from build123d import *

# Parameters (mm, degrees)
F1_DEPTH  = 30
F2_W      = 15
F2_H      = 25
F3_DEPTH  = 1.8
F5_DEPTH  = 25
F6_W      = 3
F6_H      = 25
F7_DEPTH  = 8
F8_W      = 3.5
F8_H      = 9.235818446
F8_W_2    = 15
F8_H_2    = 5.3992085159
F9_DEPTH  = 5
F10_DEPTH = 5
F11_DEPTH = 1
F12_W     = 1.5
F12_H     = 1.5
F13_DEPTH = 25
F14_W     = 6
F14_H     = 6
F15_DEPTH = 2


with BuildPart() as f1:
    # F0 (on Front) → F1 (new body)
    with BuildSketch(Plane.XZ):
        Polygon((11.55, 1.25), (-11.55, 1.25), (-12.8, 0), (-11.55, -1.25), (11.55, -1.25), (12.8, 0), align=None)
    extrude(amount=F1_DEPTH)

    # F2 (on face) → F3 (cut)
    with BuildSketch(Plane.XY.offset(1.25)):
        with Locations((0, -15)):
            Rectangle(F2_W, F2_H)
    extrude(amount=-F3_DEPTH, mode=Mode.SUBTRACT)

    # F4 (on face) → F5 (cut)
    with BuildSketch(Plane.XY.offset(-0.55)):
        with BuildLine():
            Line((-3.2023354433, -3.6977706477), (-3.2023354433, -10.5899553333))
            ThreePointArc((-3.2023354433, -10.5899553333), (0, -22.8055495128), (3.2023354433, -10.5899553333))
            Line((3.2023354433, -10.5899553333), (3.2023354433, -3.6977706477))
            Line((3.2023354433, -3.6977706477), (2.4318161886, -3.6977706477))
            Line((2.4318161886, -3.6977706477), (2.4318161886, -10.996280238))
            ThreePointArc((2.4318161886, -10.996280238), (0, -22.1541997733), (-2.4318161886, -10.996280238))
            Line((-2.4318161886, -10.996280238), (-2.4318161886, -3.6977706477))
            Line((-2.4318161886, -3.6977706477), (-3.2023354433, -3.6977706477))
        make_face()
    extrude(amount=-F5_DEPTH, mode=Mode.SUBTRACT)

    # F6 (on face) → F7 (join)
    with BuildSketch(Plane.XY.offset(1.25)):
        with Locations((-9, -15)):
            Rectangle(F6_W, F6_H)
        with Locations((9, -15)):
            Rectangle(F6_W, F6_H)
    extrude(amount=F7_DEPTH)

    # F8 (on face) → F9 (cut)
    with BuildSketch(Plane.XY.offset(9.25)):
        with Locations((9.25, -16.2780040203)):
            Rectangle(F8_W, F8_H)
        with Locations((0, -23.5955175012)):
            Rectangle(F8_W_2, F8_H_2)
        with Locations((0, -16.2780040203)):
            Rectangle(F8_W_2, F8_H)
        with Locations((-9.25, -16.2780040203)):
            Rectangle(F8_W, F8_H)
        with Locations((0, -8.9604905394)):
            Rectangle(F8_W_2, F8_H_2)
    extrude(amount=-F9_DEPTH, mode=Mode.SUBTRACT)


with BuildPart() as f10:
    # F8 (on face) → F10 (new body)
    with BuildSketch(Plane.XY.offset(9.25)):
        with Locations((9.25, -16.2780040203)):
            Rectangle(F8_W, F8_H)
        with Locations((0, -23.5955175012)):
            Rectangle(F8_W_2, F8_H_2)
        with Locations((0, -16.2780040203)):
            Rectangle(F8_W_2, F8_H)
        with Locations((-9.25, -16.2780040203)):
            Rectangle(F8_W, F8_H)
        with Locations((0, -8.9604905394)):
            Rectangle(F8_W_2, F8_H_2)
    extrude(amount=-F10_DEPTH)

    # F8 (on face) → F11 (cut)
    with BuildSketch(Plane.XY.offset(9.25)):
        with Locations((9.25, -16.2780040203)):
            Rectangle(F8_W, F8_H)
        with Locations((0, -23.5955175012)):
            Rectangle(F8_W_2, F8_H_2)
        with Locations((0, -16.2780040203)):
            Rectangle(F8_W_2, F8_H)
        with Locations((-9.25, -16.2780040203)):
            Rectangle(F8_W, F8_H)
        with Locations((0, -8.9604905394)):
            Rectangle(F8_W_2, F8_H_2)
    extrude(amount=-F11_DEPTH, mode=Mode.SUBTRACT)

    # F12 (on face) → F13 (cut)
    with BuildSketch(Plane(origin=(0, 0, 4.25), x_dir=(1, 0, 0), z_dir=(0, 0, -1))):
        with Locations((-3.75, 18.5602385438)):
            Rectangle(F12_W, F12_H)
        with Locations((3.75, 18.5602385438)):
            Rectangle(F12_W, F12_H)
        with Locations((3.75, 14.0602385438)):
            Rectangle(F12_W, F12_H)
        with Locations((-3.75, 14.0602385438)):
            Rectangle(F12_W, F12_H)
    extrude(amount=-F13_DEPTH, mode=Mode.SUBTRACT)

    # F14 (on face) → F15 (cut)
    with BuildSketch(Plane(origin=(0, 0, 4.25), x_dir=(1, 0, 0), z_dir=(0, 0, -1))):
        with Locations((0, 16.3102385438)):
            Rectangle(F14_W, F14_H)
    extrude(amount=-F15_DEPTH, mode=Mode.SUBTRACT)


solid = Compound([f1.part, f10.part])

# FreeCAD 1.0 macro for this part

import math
import FreeCAD as App
import Part
import Sketcher
from FreeCAD import Vector


def add_polygon(sketch, points):
    """Adds a closed chain of lines whose ends are joined by coincident constraints."""
    first, n = sketch.GeometryCount, len(points)
    for a, b in zip(points, points[1:] + points[:1]):
        sketch.addGeometry(Part.LineSegment(App.Vector(*a, 0), App.Vector(*b, 0)), False)
    for i in range(n):
        sketch.addConstraint(Sketcher.Constraint("Coincident", first + i, 2, first + (i + 1) % n, 1))

doc = App.newDocument("Part")
body = doc.addObject("PartDesign::Body", "Body")

# Sketch on XZ plane
sketch1 = body.newObject("Sketcher::SketchObject", "Sketch")
sketch1.AttachmentSupport = (doc.getObject("XZ_Plane"), [""])
sketch1.MapMode = "FlatFace"
add_polygon(sketch1, [(11.6, 1.2), (-11.6, 1.2), (-12.8, 0), (-11.6, -1.2), (11.6, -1.2), (12.8, 0)])  # lines 0-5
sketch1.addConstraint(Sketcher.Constraint("Horizontal", 0))
sketch1.addConstraint(Sketcher.Constraint("Horizontal", 3))
sketch1.addConstraint(Sketcher.Constraint("Symmetric", 0, 2, 3, 2, -1, 1))
sketch1.addConstraint(Sketcher.Constraint("Symmetric", 1, 2, 4, 2, -1, 1))
sketch1.addConstraint(Sketcher.Constraint("PointOnObject", 1, 2, -1))
sketch1.addConstraint(Sketcher.Constraint("Perpendicular", 1, 2))
sketch1.addConstraint(Sketcher.Constraint("Perpendicular", 4, 5))
sketch1.addConstraint(Sketcher.Constraint("Vertical", 0, 2, 2, 2))
sketch1.addConstraint(Sketcher.Constraint("DistanceX", 0, 2, 0, 1, 23.1))
sketch1.addConstraint(Sketcher.Constraint("DistanceX", 1, 2, -1, 1, 12.8))
pad1 = body.newObject("PartDesign::Pad", "Pad")
pad1.Profile = sketch1
pad1.Length = 30

# Sketch on XY plane
sketch2 = body.newObject("Sketcher::SketchObject", "Sketch001")
sketch2.AttachmentSupport = (doc.getObject("XY_Plane"), [""])
sketch2.MapMode = "FlatFace"
sketch2.AttachmentOffset = App.Placement(Vector(0, 0, 1.25), App.Rotation())
add_polygon(sketch2, [(-8, -2), (-8, -28), (8, -28), (8, -2)])  # lines 0-3
sketch2.addConstraint(Sketcher.Constraint("Vertical", 0))
sketch2.addConstraint(Sketcher.Constraint("Horizontal", 1))
sketch2.addConstraint(Sketcher.Constraint("Vertical", 2))
sketch2.addConstraint(Sketcher.Constraint("Horizontal", 3))
sketch2.addConstraint(Sketcher.Constraint("DistanceX", 1, 1, 1, 2, 15.0))
sketch2.addConstraint(Sketcher.Constraint("DistanceY", 0, 2, 0, 1, 25.0))
sketch2.addConstraint(Sketcher.Constraint("DistanceX", 0, 2, -1, 1, 7.5))
sketch2.addConstraint(Sketcher.Constraint("DistanceY", 0, 2, -1, 1, 27.5))
pocket1 = body.newObject("PartDesign::Pocket", "Pocket")
pocket1.Profile = sketch2
pocket1.Length = 1.8

# Sketch on XY plane
sketch3 = body.newObject("Sketcher::SketchObject", "Sketch002")
sketch3.AttachmentSupport = (doc.getObject("XY_Plane"), [""])
sketch3.MapMode = "FlatFace"
sketch3.AttachmentOffset = App.Placement(Vector(0, 0, -0.55), App.Rotation())
sketch3.addGeometry(Part.LineSegment(Vector(-3.2, -3.7, 0), Vector(-3.2, -10.6, 0)), False)
sketch3.addGeometry(Part.ArcOfCircle(Part.Circle(Vector(0, -16.3, 0), Vector(0, 0, 1), 6.5), math.radians(119), math.radians(421)), False)
sketch3.addGeometry(Part.LineSegment(Vector(3.2, -10.6, 0), Vector(3.2, -3.7, 0)), False)
sketch3.addGeometry(Part.LineSegment(Vector(3.2, -3.7, 0), Vector(2.4, -3.7, 0)), False)
sketch3.addGeometry(Part.LineSegment(Vector(2.4, -3.7, 0), Vector(2.4, -11, 0)), False)
sketch3.addGeometry(Part.ArcOfCircle(Part.Circle(Vector(0, -16.3, 0), Vector(0, 0, 1), 5.8), math.radians(115), math.radians(425)), False)
sketch3.addGeometry(Part.LineSegment(Vector(-2.4, -11, 0), Vector(-2.4, -3.7, 0)), False)
sketch3.addGeometry(Part.LineSegment(Vector(-2.4, -3.7, 0), Vector(-3.2, -3.7, 0)), False)
sketch3.addConstraint(Sketcher.Constraint("Coincident", 0, 2, 1, 1))
sketch3.addConstraint(Sketcher.Constraint("Coincident", 1, 2, 2, 1))
sketch3.addConstraint(Sketcher.Constraint("Coincident", 2, 2, 3, 1))
sketch3.addConstraint(Sketcher.Constraint("Coincident", 3, 2, 4, 1))
sketch3.addConstraint(Sketcher.Constraint("Coincident", 4, 2, 5, 2))
sketch3.addConstraint(Sketcher.Constraint("Coincident", 5, 1, 6, 1))
sketch3.addConstraint(Sketcher.Constraint("Coincident", 6, 2, 7, 1))
sketch3.addConstraint(Sketcher.Constraint("Coincident", 7, 2, 0, 1))
sketch3.addConstraint(Sketcher.Constraint("Vertical", 0))
sketch3.addConstraint(Sketcher.Constraint("Vertical", 2))
sketch3.addConstraint(Sketcher.Constraint("Horizontal", 3))
sketch3.addConstraint(Sketcher.Constraint("Vertical", 4))
sketch3.addConstraint(Sketcher.Constraint("Vertical", 6))
sketch3.addConstraint(Sketcher.Constraint("Horizontal", 7))
sketch3.addConstraint(Sketcher.Constraint("Symmetric", 0, 2, 1, 2, -2))
sketch3.addConstraint(Sketcher.Constraint("Symmetric", 4, 2, 5, 1, -2))
sketch3.addConstraint(Sketcher.Constraint("Horizontal", 3, 2, 6, 2))
sketch3.addConstraint(Sketcher.Constraint("Radius", 5, 5.843961))
sketch3.addConstraint(Sketcher.Constraint("Radius", 1, 6.527545))
sketch3.addConstraint(Sketcher.Constraint("DistanceX", 3, 2, 3, 1, 0.770519))
sketch3.addConstraint(Sketcher.Constraint("DistanceY", 4, 2, 4, 1, 7.29851))
sketch3.addConstraint(Sketcher.Constraint("DistanceY", 0, 2, 0, 1, 6.892185))
sketch3.addConstraint(Sketcher.Constraint("DistanceY", 5, 3, -1, 1, 16.310239))
sketch3.addConstraint(Sketcher.Constraint("DistanceY", 2, 2, -1, 1, 3.697771))
pocket2 = body.newObject("PartDesign::Pocket", "Pocket001")
pocket2.Profile = sketch3
pocket2.Length = 25

# Sketch on XY plane
sketch4 = body.newObject("Sketcher::SketchObject", "Sketch003")
sketch4.AttachmentSupport = (doc.getObject("XY_Plane"), [""])
sketch4.MapMode = "FlatFace"
sketch4.AttachmentOffset = App.Placement(Vector(0, 0, 1.25), App.Rotation())
add_polygon(sketch4, [(-10.5, -2.5), (-10.5, -27.5), (-7.5, -27.5), (-7.5, -2.5)])  # lines 0-3
add_polygon(sketch4, [(7.5, -2.5), (7.5, -27.5), (10.5, -27.5), (10.5, -2.5)])  # lines 4-7
sketch4.addConstraint(Sketcher.Constraint("Vertical", 0))
sketch4.addConstraint(Sketcher.Constraint("Horizontal", 1))
sketch4.addConstraint(Sketcher.Constraint("Vertical", 2))
sketch4.addConstraint(Sketcher.Constraint("Horizontal", 3))
sketch4.addConstraint(Sketcher.Constraint("Vertical", 4))
sketch4.addConstraint(Sketcher.Constraint("Horizontal", 5))
sketch4.addConstraint(Sketcher.Constraint("Vertical", 6))
sketch4.addConstraint(Sketcher.Constraint("Horizontal", 7))
sketch4.addConstraint(Sketcher.Constraint("Symmetric", 1, 2, 4, 2, -2))
sketch4.addConstraint(Sketcher.Constraint("Symmetric", 3, 2, 6, 2, -2))
sketch4.addConstraint(Sketcher.Constraint("DistanceX", 1, 1, 1, 2, 3.0))
sketch4.addConstraint(Sketcher.Constraint("DistanceY", 0, 2, 0, 1, 25.0))
sketch4.addConstraint(Sketcher.Constraint("DistanceX", 1, 2, 4, 2, 15.0))
sketch4.addConstraint(Sketcher.Constraint("DistanceY", 0, 2, -1, 1, 27.5))
pad2 = body.newObject("PartDesign::Pad", "Pad001")
pad2.Profile = sketch4
pad2.Length = 8

# Sketch on XY plane
sketch5 = body.newObject("Sketcher::SketchObject", "Sketch004")
sketch5.AttachmentSupport = (doc.getObject("XY_Plane"), [""])
sketch5.MapMode = "FlatFace"
sketch5.AttachmentOffset = App.Placement(Vector(0, 0, 9.25), App.Rotation())
add_polygon(sketch5, [(7.5, -20.9), (11, -20.9), (11, -11.7), (7.5, -11.7), (7.5, -6.3), (-7.5, -6.3), (-7.5, -11.7), (-11, -11.7), (-11, -20.9), (-7.5, -20.9), (-7.5, -26.3), (7.5, -26.3)])  # lines 0-11
sketch5.addConstraint(Sketcher.Constraint("Horizontal", 0))
sketch5.addConstraint(Sketcher.Constraint("Vertical", 1))
sketch5.addConstraint(Sketcher.Constraint("Horizontal", 2))
sketch5.addConstraint(Sketcher.Constraint("Vertical", 3))
sketch5.addConstraint(Sketcher.Constraint("Horizontal", 4))
sketch5.addConstraint(Sketcher.Constraint("Vertical", 5))
sketch5.addConstraint(Sketcher.Constraint("Horizontal", 6))
sketch5.addConstraint(Sketcher.Constraint("Vertical", 7))
sketch5.addConstraint(Sketcher.Constraint("Horizontal", 8))
sketch5.addConstraint(Sketcher.Constraint("Vertical", 9))
sketch5.addConstraint(Sketcher.Constraint("Horizontal", 10))
sketch5.addConstraint(Sketcher.Constraint("Vertical", 11))
sketch5.addConstraint(Sketcher.Constraint("Symmetric", 2, 2, 5, 2, -2))
sketch5.addConstraint(Sketcher.Constraint("Symmetric", 0, 2, 7, 2, -2))
sketch5.addConstraint(Sketcher.Constraint("Vertical", 5, 2, 8, 2))
sketch5.addConstraint(Sketcher.Constraint("Vertical", 3, 2, 10, 2))
sketch5.addConstraint(Sketcher.Constraint("Equal", 5, 9))
sketch5.addConstraint(Sketcher.Constraint("DistanceX", 4, 2, 4, 1, 15.0))
sketch5.addConstraint(Sketcher.Constraint("DistanceX", 0, 1, 0, 2, 3.5))
sketch5.addConstraint(Sketcher.Constraint("DistanceY", 1, 1, 1, 2, 9.235818))
sketch5.addConstraint(Sketcher.Constraint("DistanceY", 3, 1, 3, 2, 5.399209))
sketch5.addConstraint(Sketcher.Constraint("DistanceY", 9, 2, -1, 1, 26.295122))
pocket3 = body.newObject("PartDesign::Pocket", "Pocket002")
pocket3.Profile = sketch5
pocket3.Length = 5
body2 = doc.addObject("PartDesign::Body", "Body001")

# Sketch on XY plane
sketch6 = body2.newObject("Sketcher::SketchObject", "Sketch005")
sketch6.AttachmentSupport = (doc.getObject("XY_Plane001"), [""])
sketch6.MapMode = "FlatFace"
sketch6.AttachmentOffset = App.Placement(Vector(0, 0, 9.25), App.Rotation())
add_polygon(sketch6, [(7.5, -20.9), (11, -20.9), (11, -11.7), (7.5, -11.7), (7.5, -6.3), (-7.5, -6.3), (-7.5, -11.7), (-11, -11.7), (-11, -20.9), (-7.5, -20.9), (-7.5, -26.3), (7.5, -26.3)])  # lines 0-11
sketch6.addConstraint(Sketcher.Constraint("Horizontal", 0))
sketch6.addConstraint(Sketcher.Constraint("Vertical", 1))
sketch6.addConstraint(Sketcher.Constraint("Horizontal", 2))
sketch6.addConstraint(Sketcher.Constraint("Vertical", 3))
sketch6.addConstraint(Sketcher.Constraint("Horizontal", 4))
sketch6.addConstraint(Sketcher.Constraint("Vertical", 5))
sketch6.addConstraint(Sketcher.Constraint("Horizontal", 6))
sketch6.addConstraint(Sketcher.Constraint("Vertical", 7))
sketch6.addConstraint(Sketcher.Constraint("Horizontal", 8))
sketch6.addConstraint(Sketcher.Constraint("Vertical", 9))
sketch6.addConstraint(Sketcher.Constraint("Horizontal", 10))
sketch6.addConstraint(Sketcher.Constraint("Vertical", 11))
sketch6.addConstraint(Sketcher.Constraint("Symmetric", 2, 2, 5, 2, -2))
sketch6.addConstraint(Sketcher.Constraint("Symmetric", 0, 2, 7, 2, -2))
sketch6.addConstraint(Sketcher.Constraint("Vertical", 5, 2, 8, 2))
sketch6.addConstraint(Sketcher.Constraint("Vertical", 3, 2, 10, 2))
sketch6.addConstraint(Sketcher.Constraint("Equal", 5, 9))
sketch6.addConstraint(Sketcher.Constraint("DistanceX", 4, 2, 4, 1, 15.0))
sketch6.addConstraint(Sketcher.Constraint("DistanceX", 0, 1, 0, 2, 3.5))
sketch6.addConstraint(Sketcher.Constraint("DistanceY", 1, 1, 1, 2, 9.235818))
sketch6.addConstraint(Sketcher.Constraint("DistanceY", 3, 1, 3, 2, 5.399209))
sketch6.addConstraint(Sketcher.Constraint("DistanceY", 9, 2, -1, 1, 26.295122))
pad3 = body2.newObject("PartDesign::Pad", "Pad002")
pad3.Profile = sketch6
pad3.Length = 5
pad3.Reversed = True

# Sketch on XY plane
sketch7 = body2.newObject("Sketcher::SketchObject", "Sketch006")
sketch7.AttachmentSupport = (doc.getObject("XY_Plane001"), [""])
sketch7.MapMode = "FlatFace"
sketch7.AttachmentOffset = App.Placement(Vector(0, 0, 9.25), App.Rotation())
add_polygon(sketch7, [(7.5, -20.9), (11, -20.9), (11, -11.7), (7.5, -11.7), (7.5, -6.3), (-7.5, -6.3), (-7.5, -11.7), (-11, -11.7), (-11, -20.9), (-7.5, -20.9), (-7.5, -26.3), (7.5, -26.3)])  # lines 0-11
sketch7.addConstraint(Sketcher.Constraint("Horizontal", 0))
sketch7.addConstraint(Sketcher.Constraint("Vertical", 1))
sketch7.addConstraint(Sketcher.Constraint("Horizontal", 2))
sketch7.addConstraint(Sketcher.Constraint("Vertical", 3))
sketch7.addConstraint(Sketcher.Constraint("Horizontal", 4))
sketch7.addConstraint(Sketcher.Constraint("Vertical", 5))
sketch7.addConstraint(Sketcher.Constraint("Horizontal", 6))
sketch7.addConstraint(Sketcher.Constraint("Vertical", 7))
sketch7.addConstraint(Sketcher.Constraint("Horizontal", 8))
sketch7.addConstraint(Sketcher.Constraint("Vertical", 9))
sketch7.addConstraint(Sketcher.Constraint("Horizontal", 10))
sketch7.addConstraint(Sketcher.Constraint("Vertical", 11))
sketch7.addConstraint(Sketcher.Constraint("Symmetric", 2, 2, 5, 2, -2))
sketch7.addConstraint(Sketcher.Constraint("Symmetric", 0, 2, 7, 2, -2))
sketch7.addConstraint(Sketcher.Constraint("Vertical", 5, 2, 8, 2))
sketch7.addConstraint(Sketcher.Constraint("Vertical", 3, 2, 10, 2))
sketch7.addConstraint(Sketcher.Constraint("Equal", 5, 9))
sketch7.addConstraint(Sketcher.Constraint("DistanceX", 4, 2, 4, 1, 15.0))
sketch7.addConstraint(Sketcher.Constraint("DistanceX", 0, 1, 0, 2, 3.5))
sketch7.addConstraint(Sketcher.Constraint("DistanceY", 1, 1, 1, 2, 9.235818))
sketch7.addConstraint(Sketcher.Constraint("DistanceY", 3, 1, 3, 2, 5.399209))
sketch7.addConstraint(Sketcher.Constraint("DistanceY", 9, 2, -1, 1, 26.295122))
pocket4 = body2.newObject("PartDesign::Pocket", "Pocket003")
pocket4.Profile = sketch7
pocket4.Length = 1

# Sketch on XY plane
sketch8 = body2.newObject("Sketcher::SketchObject", "Sketch007")
sketch8.AttachmentSupport = (doc.getObject("XY_Plane001"), [""])
sketch8.MapMode = "FlatFace"
sketch8.AttachmentOffset = App.Placement(Vector(0, 0, 4.25), App.Rotation())
add_polygon(sketch8, [(-4.5, -19.3), (-4.5, -17.8), (-3, -17.8), (-3, -19.3)])  # lines 0-3
add_polygon(sketch8, [(3, -19.3), (3, -17.8), (4.5, -17.8), (4.5, -19.3)])  # lines 4-7
add_polygon(sketch8, [(3, -14.8), (3, -13.3), (4.5, -13.3), (4.5, -14.8)])  # lines 8-11
add_polygon(sketch8, [(-4.5, -14.8), (-4.5, -13.3), (-3, -13.3), (-3, -14.8)])  # lines 12-15
sketch8.addConstraint(Sketcher.Constraint("Vertical", 0))
sketch8.addConstraint(Sketcher.Constraint("Horizontal", 1))
sketch8.addConstraint(Sketcher.Constraint("Vertical", 2))
sketch8.addConstraint(Sketcher.Constraint("Horizontal", 3))
sketch8.addConstraint(Sketcher.Constraint("Vertical", 4))
sketch8.addConstraint(Sketcher.Constraint("Horizontal", 5))
sketch8.addConstraint(Sketcher.Constraint("Vertical", 6))
sketch8.addConstraint(Sketcher.Constraint("Horizontal", 7))
sketch8.addConstraint(Sketcher.Constraint("Vertical", 8))
sketch8.addConstraint(Sketcher.Constraint("Horizontal", 9))
sketch8.addConstraint(Sketcher.Constraint("Vertical", 10))
sketch8.addConstraint(Sketcher.Constraint("Horizontal", 11))
sketch8.addConstraint(Sketcher.Constraint("Vertical", 12))
sketch8.addConstraint(Sketcher.Constraint("Horizontal", 13))
sketch8.addConstraint(Sketcher.Constraint("Vertical", 14))
sketch8.addConstraint(Sketcher.Constraint("Horizontal", 15))
sketch8.addConstraint(Sketcher.Constraint("Symmetric", 1, 2, 4, 2, -2))
sketch8.addConstraint(Sketcher.Constraint("Symmetric", 3, 2, 6, 2, -2))
sketch8.addConstraint(Sketcher.Constraint("Symmetric", 9, 2, 12, 2, -2))
sketch8.addConstraint(Sketcher.Constraint("Symmetric", 11, 2, 14, 2, -2))
sketch8.addConstraint(Sketcher.Constraint("Vertical", 7, 2, 8, 2))
sketch8.addConstraint(Sketcher.Constraint("Vertical", 6, 2, 9, 2))
sketch8.addConstraint(Sketcher.Constraint("Equal", 15, 0))
sketch8.addConstraint(Sketcher.Constraint("Equal", 6, 8))
sketch8.addConstraint(Sketcher.Constraint("DistanceX", 1, 1, 1, 2, 1.5))
sketch8.addConstraint(Sketcher.Constraint("DistanceX", 1, 2, -1, 1, 3.0))
sketch8.addConstraint(Sketcher.Constraint("DistanceY", 7, 2, 8, 2, 6.0))
sketch8.addConstraint(Sketcher.Constraint("DistanceY", 0, 2, -1, 1, 17.810239))
pocket5 = body2.newObject("PartDesign::Pocket", "Pocket004")
pocket5.Profile = sketch8
pocket5.Length = 25
pocket5.Reversed = True

# Sketch on XY plane
sketch9 = body2.newObject("Sketcher::SketchObject", "Sketch008")
sketch9.AttachmentSupport = (doc.getObject("XY_Plane001"), [""])
sketch9.MapMode = "FlatFace"
sketch9.AttachmentOffset = App.Placement(Vector(0, 0, 4.25), App.Rotation())
add_polygon(sketch9, [(-3, -19), (-3, -13), (3, -13), (3, -19)])  # lines 0-3
sketch9.addConstraint(Sketcher.Constraint("Vertical", 0))
sketch9.addConstraint(Sketcher.Constraint("Horizontal", 1))
sketch9.addConstraint(Sketcher.Constraint("Vertical", 2))
sketch9.addConstraint(Sketcher.Constraint("Horizontal", 3))
sketch9.addConstraint(Sketcher.Constraint("Equal", 3, 0))
sketch9.addConstraint(Sketcher.Constraint("DistanceX", 1, 1, 1, 2, 6.0))
sketch9.addConstraint(Sketcher.Constraint("DistanceX", 0, 2, -1, 1, 3.0))
sketch9.addConstraint(Sketcher.Constraint("DistanceY", 0, 2, -1, 1, 13.310239))
pocket6 = body2.newObject("PartDesign::Pocket", "Pocket005")
pocket6.Profile = sketch9
pocket6.Length = 2
pocket6.Reversed = True

doc.recompute()
